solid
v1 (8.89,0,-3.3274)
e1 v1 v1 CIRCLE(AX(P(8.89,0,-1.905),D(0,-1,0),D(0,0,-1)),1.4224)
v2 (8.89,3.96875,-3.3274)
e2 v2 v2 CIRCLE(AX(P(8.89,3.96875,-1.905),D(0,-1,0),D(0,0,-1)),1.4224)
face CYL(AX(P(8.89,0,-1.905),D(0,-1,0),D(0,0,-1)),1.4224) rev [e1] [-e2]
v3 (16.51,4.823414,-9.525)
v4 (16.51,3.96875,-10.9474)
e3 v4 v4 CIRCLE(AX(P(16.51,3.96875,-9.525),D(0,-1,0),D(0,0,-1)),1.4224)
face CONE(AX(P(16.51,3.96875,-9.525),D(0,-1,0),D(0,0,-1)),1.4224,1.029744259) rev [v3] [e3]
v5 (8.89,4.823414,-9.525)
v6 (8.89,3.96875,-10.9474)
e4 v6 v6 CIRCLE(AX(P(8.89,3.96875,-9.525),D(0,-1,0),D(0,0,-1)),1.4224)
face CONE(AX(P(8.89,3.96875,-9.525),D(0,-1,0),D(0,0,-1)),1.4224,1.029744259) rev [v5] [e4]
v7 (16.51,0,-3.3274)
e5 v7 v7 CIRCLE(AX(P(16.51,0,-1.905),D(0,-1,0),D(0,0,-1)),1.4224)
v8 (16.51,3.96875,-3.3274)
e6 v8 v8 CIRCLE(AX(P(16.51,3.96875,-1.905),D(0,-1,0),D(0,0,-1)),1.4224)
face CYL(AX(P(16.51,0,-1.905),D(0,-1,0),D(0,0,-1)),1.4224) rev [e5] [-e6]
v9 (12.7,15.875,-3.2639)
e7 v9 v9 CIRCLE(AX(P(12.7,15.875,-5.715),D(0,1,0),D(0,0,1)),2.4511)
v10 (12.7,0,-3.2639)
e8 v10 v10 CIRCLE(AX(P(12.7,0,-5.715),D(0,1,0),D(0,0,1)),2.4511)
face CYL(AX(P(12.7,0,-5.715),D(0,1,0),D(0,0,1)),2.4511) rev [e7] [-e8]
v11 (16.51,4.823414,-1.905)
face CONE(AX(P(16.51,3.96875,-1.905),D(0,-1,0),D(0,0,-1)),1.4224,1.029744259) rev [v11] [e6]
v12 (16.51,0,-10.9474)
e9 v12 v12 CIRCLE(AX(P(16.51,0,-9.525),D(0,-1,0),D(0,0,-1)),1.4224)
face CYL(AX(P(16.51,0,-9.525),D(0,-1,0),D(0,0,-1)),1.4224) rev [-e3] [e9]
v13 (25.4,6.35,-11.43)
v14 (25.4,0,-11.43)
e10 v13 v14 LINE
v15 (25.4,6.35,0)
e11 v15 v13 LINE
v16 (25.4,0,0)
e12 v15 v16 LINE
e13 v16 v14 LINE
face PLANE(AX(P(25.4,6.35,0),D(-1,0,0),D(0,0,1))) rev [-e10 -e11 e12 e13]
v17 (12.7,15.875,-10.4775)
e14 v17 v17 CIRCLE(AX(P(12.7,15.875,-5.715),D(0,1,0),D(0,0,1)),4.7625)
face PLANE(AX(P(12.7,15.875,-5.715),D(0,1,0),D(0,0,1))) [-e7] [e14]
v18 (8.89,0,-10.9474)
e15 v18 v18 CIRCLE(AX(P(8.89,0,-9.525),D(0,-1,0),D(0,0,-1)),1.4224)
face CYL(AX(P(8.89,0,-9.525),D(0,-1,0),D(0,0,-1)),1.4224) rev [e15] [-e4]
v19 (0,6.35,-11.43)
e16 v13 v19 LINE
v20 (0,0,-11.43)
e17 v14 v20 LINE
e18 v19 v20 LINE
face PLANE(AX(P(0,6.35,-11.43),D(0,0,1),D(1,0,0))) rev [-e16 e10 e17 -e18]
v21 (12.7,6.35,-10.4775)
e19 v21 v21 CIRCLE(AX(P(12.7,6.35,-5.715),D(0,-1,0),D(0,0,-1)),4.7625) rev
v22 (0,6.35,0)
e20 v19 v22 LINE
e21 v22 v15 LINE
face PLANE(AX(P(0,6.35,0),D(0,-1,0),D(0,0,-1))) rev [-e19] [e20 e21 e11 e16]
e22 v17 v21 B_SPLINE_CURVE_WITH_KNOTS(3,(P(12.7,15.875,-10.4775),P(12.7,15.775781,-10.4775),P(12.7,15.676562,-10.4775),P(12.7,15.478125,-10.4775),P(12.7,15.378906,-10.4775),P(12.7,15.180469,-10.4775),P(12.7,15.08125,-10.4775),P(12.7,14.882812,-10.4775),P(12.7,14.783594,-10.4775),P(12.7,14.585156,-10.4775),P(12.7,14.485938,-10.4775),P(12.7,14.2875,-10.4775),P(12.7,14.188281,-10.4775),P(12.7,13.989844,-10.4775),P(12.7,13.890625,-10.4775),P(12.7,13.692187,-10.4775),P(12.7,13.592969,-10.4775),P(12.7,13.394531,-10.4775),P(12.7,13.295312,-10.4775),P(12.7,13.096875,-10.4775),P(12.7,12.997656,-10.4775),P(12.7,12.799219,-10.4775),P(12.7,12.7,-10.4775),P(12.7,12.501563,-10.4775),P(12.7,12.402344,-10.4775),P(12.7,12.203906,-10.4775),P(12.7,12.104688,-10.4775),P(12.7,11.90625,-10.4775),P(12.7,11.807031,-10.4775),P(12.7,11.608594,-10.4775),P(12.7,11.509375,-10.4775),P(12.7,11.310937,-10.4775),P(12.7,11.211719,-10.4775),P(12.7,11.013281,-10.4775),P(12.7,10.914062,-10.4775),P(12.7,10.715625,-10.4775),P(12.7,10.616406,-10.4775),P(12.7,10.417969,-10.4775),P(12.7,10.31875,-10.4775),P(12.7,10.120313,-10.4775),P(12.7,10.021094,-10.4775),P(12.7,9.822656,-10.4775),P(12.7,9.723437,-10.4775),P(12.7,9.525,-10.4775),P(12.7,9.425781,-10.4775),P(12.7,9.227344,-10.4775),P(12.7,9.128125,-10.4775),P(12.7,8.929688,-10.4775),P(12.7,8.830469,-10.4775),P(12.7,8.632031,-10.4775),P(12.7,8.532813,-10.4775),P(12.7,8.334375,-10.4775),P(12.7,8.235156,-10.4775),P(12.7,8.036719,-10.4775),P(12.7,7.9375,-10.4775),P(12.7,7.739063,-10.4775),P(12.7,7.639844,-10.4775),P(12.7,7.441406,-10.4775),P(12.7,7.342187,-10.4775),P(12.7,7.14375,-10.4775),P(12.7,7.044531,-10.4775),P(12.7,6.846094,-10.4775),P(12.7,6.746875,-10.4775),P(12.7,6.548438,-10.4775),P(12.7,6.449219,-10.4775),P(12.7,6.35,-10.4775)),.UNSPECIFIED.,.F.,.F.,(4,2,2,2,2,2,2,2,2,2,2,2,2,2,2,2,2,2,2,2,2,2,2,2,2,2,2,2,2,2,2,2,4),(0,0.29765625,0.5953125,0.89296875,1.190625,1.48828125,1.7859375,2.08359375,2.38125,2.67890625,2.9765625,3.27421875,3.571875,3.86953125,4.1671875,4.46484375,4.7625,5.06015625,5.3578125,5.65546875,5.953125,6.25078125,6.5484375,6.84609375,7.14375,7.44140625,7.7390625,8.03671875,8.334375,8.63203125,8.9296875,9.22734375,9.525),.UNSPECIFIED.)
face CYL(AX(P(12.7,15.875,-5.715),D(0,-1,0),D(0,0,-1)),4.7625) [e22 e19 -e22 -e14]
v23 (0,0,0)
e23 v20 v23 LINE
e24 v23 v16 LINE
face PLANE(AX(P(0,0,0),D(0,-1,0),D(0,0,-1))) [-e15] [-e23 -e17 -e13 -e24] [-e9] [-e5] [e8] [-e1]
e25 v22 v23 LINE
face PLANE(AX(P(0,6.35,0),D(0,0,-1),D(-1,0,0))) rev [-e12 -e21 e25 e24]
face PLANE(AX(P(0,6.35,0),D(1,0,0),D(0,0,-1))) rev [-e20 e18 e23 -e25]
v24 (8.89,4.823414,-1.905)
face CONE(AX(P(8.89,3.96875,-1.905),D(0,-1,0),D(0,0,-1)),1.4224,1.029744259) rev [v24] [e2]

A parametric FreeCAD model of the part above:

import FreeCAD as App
import Part
import Sketcher

V = App.Vector
Q = App.Units.Quantity

doc = App.newDocument("Part")
body = doc.addObject("PartDesign::Body", "Body")

sketch1 = body.newObject("Sketcher::SketchObject", "Sketch")
sketch1.AttachmentSupport = (doc.getObject("XZ_Plane"), [""])
sketch1.MapMode = "FlatFace"
sketch1.addGeometry(Part.LineSegment(V(0, -11, 0), V(0, 0, 0)), False)
sketch1.addGeometry(Part.LineSegment(V(0, 0, 0), V(25, 0, 0)), False)
sketch1.addGeometry(Part.LineSegment(V(25, 0, 0), V(25, -11, 0)), False)
sketch1.addGeometry(Part.LineSegment(V(25, -11, 0), V(0, -11, 0)), False)
sketch1.addConstraint(Sketcher.Constraint("Coincident", 0, 2, 1, 1))
sketch1.addConstraint(Sketcher.Constraint("Coincident", 1, 2, 2, 1))
sketch1.addConstraint(Sketcher.Constraint("Coincident", 2, 2, 3, 1))
sketch1.addConstraint(Sketcher.Constraint("Coincident", 3, 2, 0, 1))
sketch1.addConstraint(Sketcher.Constraint("Vertical", 0))
sketch1.addConstraint(Sketcher.Constraint("Horizontal", 1))
sketch1.addConstraint(Sketcher.Constraint("Vertical", 2))
sketch1.addConstraint(Sketcher.Constraint("Horizontal", 3))
sketch1.addConstraint(Sketcher.Constraint("Coincident", 0, 2, -1, 1))
sketch1.addConstraint(Sketcher.Constraint("DistanceX", 1, 1, 1, 2, Q("1 in")))
sketch1.addConstraint(Sketcher.Constraint("DistanceY", 0, 1, 0, 2, Q("0.45 in")))
pad1 = body.newObject("PartDesign::Pad", "Pad")
pad1.Profile = sketch1
pad1.Length = Q("0.25 in")
pad1.Reversed = True

sketch2 = body.newObject("Sketcher::SketchObject", "Sketch001")
sketch2.AttachmentSupport = (doc.getObject("XZ_Plane"), [""])
sketch2.MapMode = "FlatFace"
sketch2.AttachmentOffset = App.Placement(V(0, 0, -0.25 * 25.4), App.Rotation())
sketch2.addGeometry(Part.Circle(V(12.7, -5.7, 0), V(0, 0, 1), 4.8), False)
sketch2.addConstraint(Sketcher.Constraint("Diameter", 0, Q("0.375 in")))
sketch2.addConstraint(Sketcher.Constraint("DistanceX", -1, 1, 0, 3, Q("0.5 in")))
sketch2.addConstraint(Sketcher.Constraint("DistanceY", 0, 3, -1, 1, Q("0.225 in")))
pad2 = body.newObject("PartDesign::Pad", "Pad001")
pad2.Profile = sketch2
pad2.Length = Q("0.375 in")
pad2.Reversed = True

sketch3 = body.newObject("Sketcher::SketchObject", "Sketch002")
sketch3.AttachmentSupport = (doc.getObject("XZ_Plane"), [""])
sketch3.MapMode = "FlatFace"
sketch3.AttachmentOffset = App.Placement(V(0, 0, -0.625 * 25.4), App.Rotation())
sketch3.addGeometry(Part.Circle(V(12.7, -5.7, 0), V(0, 0, 1), 2.5), False)
sketch3.addConstraint(Sketcher.Constraint("Diameter", 0, Q("0.193 in")))
sketch3.addConstraint(Sketcher.Constraint("DistanceX", -1, 1, 0, 3, Q("0.5 in")))
sketch3.addConstraint(Sketcher.Constraint("DistanceY", 0, 3, -1, 1, Q("0.225 in")))
pocket1 = body.newObject("PartDesign::Pocket", "Pocket")
pocket1.Profile = sketch3
pocket1.Type = "ThroughAll"
pocket1.Reversed = True

sketch4 = body.newObject("Sketcher::SketchObject", "Sketch003")
sketch4.AttachmentSupport = (doc.getObject("XZ_Plane"), [""])
sketch4.MapMode = "FlatFace"
sketch4.addGeometry(Part.Circle(V(8.9, -1.9, 0), V(0, 0, 1), 1.4), False)
sketch4.addGeometry(Part.Circle(V(8.9, -9.5, 0), V(0, 0, 1), 1.4), False)
sketch4.addGeometry(Part.Circle(V(16.5, -9.5, 0), V(0, 0, 1), 1.4), False)
sketch4.addGeometry(Part.Circle(V(16.5, -1.9, 0), V(0, 0, 1), 1.4), False)
sketch4.addConstraint(Sketcher.Constraint("Equal", 0, 1))
sketch4.addConstraint(Sketcher.Constraint("Equal", 1, 2))
sketch4.addConstraint(Sketcher.Constraint("Equal", 2, 3))
sketch4.addConstraint(Sketcher.Constraint("Horizontal", 1, 3, 2, 3))
sketch4.addConstraint(Sketcher.Constraint("Horizontal", 0, 3, 3, 3))
sketch4.addConstraint(Sketcher.Constraint("Vertical", 0, 3, 1, 3))
sketch4.addConstraint(Sketcher.Constraint("Vertical", 2, 3, 3, 3))
sketch4.addConstraint(Sketcher.Constraint("Diameter", 0, Q("0.112 in")))
sketch4.addConstraint(Sketcher.Constraint("DistanceY", 1, 3, 0, 3, Q("0.3 in")))
sketch4.addConstraint(Sketcher.Constraint("DistanceX", 1, 3, 2, 3, Q("0.3 in")))
sketch4.addConstraint(Sketcher.Constraint("DistanceX", -1, 1, 0, 3, Q("0.35 in")))
sketch4.addConstraint(Sketcher.Constraint("DistanceY", 0, 3, -1, 1, Q("0.075 in")))
doc.recompute()
hole = body.newObject("PartDesign::Hole", "Hole")
hole.Profile = sketch4
hole.ThreadType = "None"
hole.Diameter = Q("0.112 in")
hole.DepthType = "Dimension"
hole.Depth = Q("0.15625 in")
hole.DrillPoint = "Angled"
hole.DrillPointAngle = 118

doc.recompute()
